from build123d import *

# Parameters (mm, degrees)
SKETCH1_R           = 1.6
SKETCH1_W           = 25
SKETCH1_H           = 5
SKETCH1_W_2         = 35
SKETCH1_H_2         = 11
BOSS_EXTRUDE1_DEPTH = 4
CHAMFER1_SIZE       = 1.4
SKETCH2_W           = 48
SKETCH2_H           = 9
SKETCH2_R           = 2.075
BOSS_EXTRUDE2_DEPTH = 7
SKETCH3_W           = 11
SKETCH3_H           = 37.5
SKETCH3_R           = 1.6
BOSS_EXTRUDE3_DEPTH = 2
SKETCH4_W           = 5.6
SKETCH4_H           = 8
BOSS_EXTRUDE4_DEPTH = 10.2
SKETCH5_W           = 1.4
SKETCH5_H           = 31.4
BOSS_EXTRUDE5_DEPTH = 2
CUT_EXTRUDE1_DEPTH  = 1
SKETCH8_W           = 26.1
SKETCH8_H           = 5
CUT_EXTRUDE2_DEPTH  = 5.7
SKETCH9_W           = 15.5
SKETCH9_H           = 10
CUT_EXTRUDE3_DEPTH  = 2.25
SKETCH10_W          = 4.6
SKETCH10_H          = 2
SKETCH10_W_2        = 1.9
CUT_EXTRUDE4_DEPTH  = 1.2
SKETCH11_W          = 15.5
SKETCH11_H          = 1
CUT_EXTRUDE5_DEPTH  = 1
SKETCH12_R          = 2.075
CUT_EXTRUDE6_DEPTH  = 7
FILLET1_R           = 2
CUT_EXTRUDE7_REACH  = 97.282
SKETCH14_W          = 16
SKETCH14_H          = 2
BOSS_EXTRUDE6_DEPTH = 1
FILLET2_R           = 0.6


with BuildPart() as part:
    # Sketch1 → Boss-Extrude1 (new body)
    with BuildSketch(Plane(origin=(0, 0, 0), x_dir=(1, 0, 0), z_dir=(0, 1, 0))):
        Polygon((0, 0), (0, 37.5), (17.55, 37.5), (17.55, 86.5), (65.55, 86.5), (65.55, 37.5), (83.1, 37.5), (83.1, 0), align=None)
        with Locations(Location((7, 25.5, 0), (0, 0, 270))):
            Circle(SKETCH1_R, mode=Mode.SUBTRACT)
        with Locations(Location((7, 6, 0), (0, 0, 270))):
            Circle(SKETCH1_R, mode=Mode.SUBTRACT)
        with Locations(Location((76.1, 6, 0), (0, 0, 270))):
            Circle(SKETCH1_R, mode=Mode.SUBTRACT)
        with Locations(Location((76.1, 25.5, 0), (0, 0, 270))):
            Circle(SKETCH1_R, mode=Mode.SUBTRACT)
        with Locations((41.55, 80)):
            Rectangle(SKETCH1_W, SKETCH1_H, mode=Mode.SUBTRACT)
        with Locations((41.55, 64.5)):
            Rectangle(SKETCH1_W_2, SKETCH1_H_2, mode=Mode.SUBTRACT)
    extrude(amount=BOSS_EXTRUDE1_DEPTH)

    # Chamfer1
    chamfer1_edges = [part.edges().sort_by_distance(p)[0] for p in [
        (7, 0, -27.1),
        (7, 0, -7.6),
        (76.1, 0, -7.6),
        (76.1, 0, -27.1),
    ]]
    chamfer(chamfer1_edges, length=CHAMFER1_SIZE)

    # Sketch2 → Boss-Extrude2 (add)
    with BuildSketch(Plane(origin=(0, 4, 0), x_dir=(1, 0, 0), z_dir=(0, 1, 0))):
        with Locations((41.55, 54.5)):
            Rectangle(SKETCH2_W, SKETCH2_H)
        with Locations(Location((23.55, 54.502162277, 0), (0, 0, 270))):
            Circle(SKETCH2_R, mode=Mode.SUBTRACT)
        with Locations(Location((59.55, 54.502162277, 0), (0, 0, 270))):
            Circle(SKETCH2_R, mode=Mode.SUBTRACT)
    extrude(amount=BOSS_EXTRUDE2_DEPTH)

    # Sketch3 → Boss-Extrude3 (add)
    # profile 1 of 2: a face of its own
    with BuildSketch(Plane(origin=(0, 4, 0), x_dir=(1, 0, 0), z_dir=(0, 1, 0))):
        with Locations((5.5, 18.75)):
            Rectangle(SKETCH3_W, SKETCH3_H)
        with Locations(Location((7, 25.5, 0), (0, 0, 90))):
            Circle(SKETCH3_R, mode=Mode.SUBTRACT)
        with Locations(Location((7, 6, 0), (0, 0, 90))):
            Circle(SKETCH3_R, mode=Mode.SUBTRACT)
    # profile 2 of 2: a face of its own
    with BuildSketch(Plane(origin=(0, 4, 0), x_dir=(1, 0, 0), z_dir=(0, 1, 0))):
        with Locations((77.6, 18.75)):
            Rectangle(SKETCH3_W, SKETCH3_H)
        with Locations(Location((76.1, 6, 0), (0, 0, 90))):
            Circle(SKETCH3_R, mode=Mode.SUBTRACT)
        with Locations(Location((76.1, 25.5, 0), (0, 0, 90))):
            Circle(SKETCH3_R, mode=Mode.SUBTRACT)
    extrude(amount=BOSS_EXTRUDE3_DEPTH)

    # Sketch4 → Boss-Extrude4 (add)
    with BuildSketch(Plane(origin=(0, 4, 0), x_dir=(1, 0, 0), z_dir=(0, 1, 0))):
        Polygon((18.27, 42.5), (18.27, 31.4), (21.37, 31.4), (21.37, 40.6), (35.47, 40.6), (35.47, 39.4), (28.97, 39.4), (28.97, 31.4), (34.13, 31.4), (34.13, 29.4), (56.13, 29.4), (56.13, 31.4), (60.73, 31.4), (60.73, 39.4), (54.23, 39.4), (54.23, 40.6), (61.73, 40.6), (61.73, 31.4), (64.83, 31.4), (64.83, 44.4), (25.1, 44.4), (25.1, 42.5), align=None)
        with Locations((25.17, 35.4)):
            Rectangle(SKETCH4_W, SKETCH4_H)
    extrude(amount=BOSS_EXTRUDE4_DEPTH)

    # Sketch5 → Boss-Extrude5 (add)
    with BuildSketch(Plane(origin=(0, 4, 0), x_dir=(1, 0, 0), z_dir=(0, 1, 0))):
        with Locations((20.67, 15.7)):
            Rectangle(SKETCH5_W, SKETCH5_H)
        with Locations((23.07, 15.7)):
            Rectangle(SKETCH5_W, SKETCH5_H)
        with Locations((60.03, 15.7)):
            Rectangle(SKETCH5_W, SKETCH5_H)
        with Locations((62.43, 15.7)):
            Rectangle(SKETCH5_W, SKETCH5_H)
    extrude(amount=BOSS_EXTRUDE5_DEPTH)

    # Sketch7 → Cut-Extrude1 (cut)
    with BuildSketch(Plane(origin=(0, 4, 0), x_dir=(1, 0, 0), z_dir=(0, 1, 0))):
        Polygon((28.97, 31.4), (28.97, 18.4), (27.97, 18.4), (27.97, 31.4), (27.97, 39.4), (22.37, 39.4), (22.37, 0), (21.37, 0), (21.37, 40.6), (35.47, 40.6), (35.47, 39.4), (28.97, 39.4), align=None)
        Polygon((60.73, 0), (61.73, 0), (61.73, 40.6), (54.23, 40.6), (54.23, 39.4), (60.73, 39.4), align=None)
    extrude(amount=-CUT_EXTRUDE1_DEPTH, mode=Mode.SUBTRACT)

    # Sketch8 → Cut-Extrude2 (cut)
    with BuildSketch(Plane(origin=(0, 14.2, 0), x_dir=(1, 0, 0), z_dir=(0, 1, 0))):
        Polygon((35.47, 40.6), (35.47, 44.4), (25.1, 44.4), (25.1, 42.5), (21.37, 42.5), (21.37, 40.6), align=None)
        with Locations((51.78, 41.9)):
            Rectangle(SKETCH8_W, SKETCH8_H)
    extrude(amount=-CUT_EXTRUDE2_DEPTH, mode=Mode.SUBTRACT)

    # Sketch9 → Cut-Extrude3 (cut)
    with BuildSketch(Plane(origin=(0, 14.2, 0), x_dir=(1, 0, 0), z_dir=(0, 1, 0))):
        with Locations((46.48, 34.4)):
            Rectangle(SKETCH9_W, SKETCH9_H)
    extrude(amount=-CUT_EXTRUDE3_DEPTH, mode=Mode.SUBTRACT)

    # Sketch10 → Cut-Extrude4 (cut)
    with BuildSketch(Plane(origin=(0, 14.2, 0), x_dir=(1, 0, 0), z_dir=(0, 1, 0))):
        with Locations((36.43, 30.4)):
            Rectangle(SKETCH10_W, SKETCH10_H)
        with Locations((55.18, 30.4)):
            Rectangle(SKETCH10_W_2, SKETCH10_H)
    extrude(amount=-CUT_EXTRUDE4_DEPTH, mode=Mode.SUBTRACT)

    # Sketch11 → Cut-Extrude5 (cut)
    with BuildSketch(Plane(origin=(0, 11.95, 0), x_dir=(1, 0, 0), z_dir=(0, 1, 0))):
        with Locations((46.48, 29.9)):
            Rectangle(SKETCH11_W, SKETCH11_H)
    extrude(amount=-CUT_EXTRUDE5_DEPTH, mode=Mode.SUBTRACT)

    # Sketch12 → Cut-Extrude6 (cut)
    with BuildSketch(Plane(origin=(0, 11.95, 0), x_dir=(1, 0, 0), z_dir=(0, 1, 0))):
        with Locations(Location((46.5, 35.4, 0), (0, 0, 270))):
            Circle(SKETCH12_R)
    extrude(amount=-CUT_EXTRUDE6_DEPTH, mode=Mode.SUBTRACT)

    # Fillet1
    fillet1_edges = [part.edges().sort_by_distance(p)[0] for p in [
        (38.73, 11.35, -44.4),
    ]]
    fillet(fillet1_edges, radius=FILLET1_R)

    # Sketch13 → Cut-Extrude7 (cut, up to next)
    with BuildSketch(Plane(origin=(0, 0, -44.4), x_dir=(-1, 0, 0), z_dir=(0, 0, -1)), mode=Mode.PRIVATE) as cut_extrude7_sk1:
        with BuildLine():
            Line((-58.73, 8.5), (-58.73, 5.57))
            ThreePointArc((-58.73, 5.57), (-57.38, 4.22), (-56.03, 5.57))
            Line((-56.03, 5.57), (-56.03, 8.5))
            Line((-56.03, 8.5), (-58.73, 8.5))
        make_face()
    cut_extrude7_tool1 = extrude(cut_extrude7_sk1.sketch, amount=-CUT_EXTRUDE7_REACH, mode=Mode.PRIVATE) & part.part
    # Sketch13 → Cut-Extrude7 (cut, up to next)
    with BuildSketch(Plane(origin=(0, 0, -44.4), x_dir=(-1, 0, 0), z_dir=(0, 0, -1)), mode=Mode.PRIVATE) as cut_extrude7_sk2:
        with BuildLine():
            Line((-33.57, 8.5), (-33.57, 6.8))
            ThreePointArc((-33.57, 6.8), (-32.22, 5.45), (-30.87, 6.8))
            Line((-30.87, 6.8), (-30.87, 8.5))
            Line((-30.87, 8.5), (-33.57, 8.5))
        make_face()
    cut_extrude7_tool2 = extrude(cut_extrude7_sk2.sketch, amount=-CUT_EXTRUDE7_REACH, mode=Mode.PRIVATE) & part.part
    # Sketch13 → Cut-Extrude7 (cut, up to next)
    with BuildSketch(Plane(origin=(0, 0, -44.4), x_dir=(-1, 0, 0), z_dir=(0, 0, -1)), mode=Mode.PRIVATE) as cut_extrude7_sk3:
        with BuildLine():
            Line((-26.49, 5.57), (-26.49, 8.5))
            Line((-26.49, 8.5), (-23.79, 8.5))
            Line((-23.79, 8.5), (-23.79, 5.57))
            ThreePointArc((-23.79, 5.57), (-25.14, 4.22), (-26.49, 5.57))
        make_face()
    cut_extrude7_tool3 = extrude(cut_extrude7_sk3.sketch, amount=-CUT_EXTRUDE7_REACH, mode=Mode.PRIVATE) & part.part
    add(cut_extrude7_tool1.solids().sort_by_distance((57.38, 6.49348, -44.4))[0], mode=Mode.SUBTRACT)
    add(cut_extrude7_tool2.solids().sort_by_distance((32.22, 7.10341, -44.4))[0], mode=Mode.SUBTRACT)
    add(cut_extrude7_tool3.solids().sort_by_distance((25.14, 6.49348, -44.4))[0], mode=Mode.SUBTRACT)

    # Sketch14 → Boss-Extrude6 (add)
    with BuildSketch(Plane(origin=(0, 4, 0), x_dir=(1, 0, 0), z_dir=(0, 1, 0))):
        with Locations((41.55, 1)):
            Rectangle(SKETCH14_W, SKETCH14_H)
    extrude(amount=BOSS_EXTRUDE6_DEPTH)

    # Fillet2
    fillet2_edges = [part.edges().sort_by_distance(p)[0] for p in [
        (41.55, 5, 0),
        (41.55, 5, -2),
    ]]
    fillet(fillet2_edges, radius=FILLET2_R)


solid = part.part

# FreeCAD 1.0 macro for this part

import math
import FreeCAD as App
import Part
import Sketcher
Q = App.Units.Quantity


def edges_at(feature, points):
    """Names of the edges that pass closest to the given points."""
    edges = feature.Shape.Edges
    near = lambda p: min(range(len(edges)), key=lambda i: edges[i].distToShape(Part.Vertex(*p))[0])
    return sorted({f"Edge{near(p) + 1}" for p in points})


def add_polygon(sketch, points):
    """Adds a closed chain of lines whose ends are joined by coincident constraints."""
    first, n = sketch.GeometryCount, len(points)
    for a, b in zip(points, points[1:] + points[:1]):
        sketch.addGeometry(Part.LineSegment(App.Vector(*a, 0), App.Vector(*b, 0)), False)
    for i in range(n):
        sketch.addConstraint(Sketcher.Constraint("Coincident", first + i, 2, first + (i + 1) % n, 1))

doc = App.newDocument("Part")
body = doc.addObject("PartDesign::Body", "Body")

# Sketch on XZ plane
sketch1 = body.newObject("Sketcher::SketchObject", "Sketch")
sketch1.AttachmentSupport = (doc.getObject("XZ_Plane"), [""])
sketch1.MapMode = "FlatFace"
add_polygon(sketch1, [(0, -37.5), (0, 0), (83.1, 0), (83.1, -37.5), (65.5, -37.5), (65.5, -86.5), (17.6, -86.5), (17.6, -37.5)])  # lines 0-7
sketch1.addGeometry(Part.Circle(App.Vector(76.1, -6, 0), App.Vector(0, 0, 1), 1.6), False)  # 8
sketch1.addGeometry(Part.Circle(App.Vector(76.1, -25.5, 0), App.Vector(0, 0, 1), 1.6), False)  # 9
sketch1.addGeometry(Part.Circle(App.Vector(7, -6, 0), App.Vector(0, 0, 1), 1.6), False)  # 10
sketch1.addGeometry(Part.Circle(App.Vector(7, -25.5, 0), App.Vector(0, 0, 1), 1.6), False)  # 11
add_polygon(sketch1, [(24.1, -59), (24.1, -70), (59, -70), (59, -59)])  # lines 12-15
add_polygon(sketch1, [(29.1, -77.5), (29.1, -82.5), (54, -82.5), (54, -77.5)])  # lines 16-19
sketch1.addConstraint(Sketcher.Constraint("Vertical", 0))
sketch1.addConstraint(Sketcher.Constraint("Horizontal", 1))
sketch1.addConstraint(Sketcher.Constraint("Vertical", 2))
sketch1.addConstraint(Sketcher.Constraint("Horizontal", 3))
sketch1.addConstraint(Sketcher.Constraint("Vertical", 4))
sketch1.addConstraint(Sketcher.Constraint("Horizontal", 5))
sketch1.addConstraint(Sketcher.Constraint("Vertical", 6))
sketch1.addConstraint(Sketcher.Constraint("Horizontal", 7))
sketch1.addConstraint(Sketcher.Constraint("Vertical", 12))
sketch1.addConstraint(Sketcher.Constraint("Horizontal", 13))
sketch1.addConstraint(Sketcher.Constraint("Vertical", 14))
sketch1.addConstraint(Sketcher.Constraint("Horizontal", 15))
sketch1.addConstraint(Sketcher.Constraint("Vertical", 16))
sketch1.addConstraint(Sketcher.Constraint("Horizontal", 17))
sketch1.addConstraint(Sketcher.Constraint("Vertical", 18))
sketch1.addConstraint(Sketcher.Constraint("Horizontal", 19))
sketch1.addConstraint(Sketcher.Constraint("Coincident", 0, 2, -1, 1))
sketch1.addConstraint(Sketcher.Constraint("Equal", 8, 9))
sketch1.addConstraint(Sketcher.Constraint("Equal", 9, 10))
sketch1.addConstraint(Sketcher.Constraint("Equal", 10, 11))
sketch1.addConstraint(Sketcher.Constraint("Horizontal", 8, 3, 10, 3))
sketch1.addConstraint(Sketcher.Constraint("Horizontal", 9, 3, 11, 3))
sketch1.addConstraint(Sketcher.Constraint("Horizontal", 3, 2, 6, 2))
sketch1.addConstraint(Sketcher.Constraint("Vertical", 8, 3, 9, 3))
sketch1.addConstraint(Sketcher.Constraint("Vertical", 10, 3, 11, 3))
sketch1.addConstraint(Sketcher.Constraint("Equal", 3, 7))
sketch1.addConstraint(Sketcher.Constraint("Diameter", 8, Q("3.2 mm")))
sketch1.addConstraint(Sketcher.Constraint("DistanceX", 5, 2, 5, 1, Q("48 mm")))
sketch1.addConstraint(Sketcher.Constraint("DistanceX", 13, 1, 13, 2, Q("35 mm")))
sketch1.addConstraint(Sketcher.Constraint("DistanceX", 17, 1, 17, 2, Q("25 mm")))
sketch1.addConstraint(Sketcher.Constraint("DistanceY", 4, 2, 4, 1, Q("49 mm")))
sketch1.addConstraint(Sketcher.Constraint("DistanceY", 12, 2, 12, 1, Q("11 mm")))
sketch1.addConstraint(Sketcher.Constraint("DistanceY", 16, 2, 16, 1, Q("5 mm")))
sketch1.addConstraint(Sketcher.Constraint("DistanceX", 1, 1, 1, 2, Q("83.1 mm")))
sketch1.addConstraint(Sketcher.Constraint("DistanceY", 0, 1, 0, 2, Q("37.5 mm")))
sketch1.addConstraint(Sketcher.Constraint("DistanceY", 8, 3, -1, 1, Q("6 mm")))
sketch1.addConstraint(Sketcher.Constraint("DistanceX", -1, 1, 10, 3, Q("7 mm")))
sketch1.addConstraint(Sketcher.Constraint("DistanceY", 12, 2, -1, 1, Q("70 mm")))
sketch1.addConstraint(Sketcher.Constraint("DistanceX", 8, 3, 1, 2, Q("7 mm")))
sketch1.addConstraint(Sketcher.Constraint("DistanceY", 2, 2, 9, 3, Q("12 mm")))
sketch1.addConstraint(Sketcher.Constraint("DistanceY", 5, 2, 16, 2, Q("4 mm")))
sketch1.addConstraint(Sketcher.Constraint("DistanceX", 12, 2, 16, 2, Q("5 mm")))
sketch1.addConstraint(Sketcher.Constraint("DistanceX", 5, 2, 12, 2, Q("6.5 mm")))
pad1 = body.newObject("PartDesign::Pad", "Pad")
pad1.Profile = sketch1
pad1.Length = 4
pad1.Reversed = True
doc.recompute()

chamfer = body.newObject("PartDesign::Chamfer", "Chamfer")
chamfer.Base = (pad1, edges_at(pad1, [
    (7, 0, -27.1),
    (7, 0, -7.6),
    (76.1, 0, -7.6),
    (76.1, 0, -27.1),
]))
chamfer.Size = 1.4

# Sketch on XZ plane
sketch2 = body.newObject("Sketcher::SketchObject", "Sketch001")
sketch2.AttachmentSupport = (doc.getObject("XZ_Plane"), [""])
sketch2.MapMode = "FlatFace"
sketch2.AttachmentOffset = App.Placement(App.Vector(0, 0, -4), App.Rotation())
add_polygon(sketch2, [(17.6, -59), (17.6, -50), (65.5, -50), (65.5, -59)])  # lines 0-3
sketch2.addGeometry(Part.Circle(App.Vector(23.6, -54.5, 0), App.Vector(0, 0, 1), 2.1), False)  # 4
sketch2.addGeometry(Part.Circle(App.Vector(59.5, -54.5, 0), App.Vector(0, 0, 1), 2.1), False)  # 5
sketch2.addConstraint(Sketcher.Constraint("Vertical", 0))
sketch2.addConstraint(Sketcher.Constraint("Horizontal", 1))
sketch2.addConstraint(Sketcher.Constraint("Vertical", 2))
sketch2.addConstraint(Sketcher.Constraint("Horizontal", 3))
sketch2.addConstraint(Sketcher.Constraint("Equal", 4, 5))
sketch2.addConstraint(Sketcher.Constraint("Horizontal", 4, 3, 5, 3))
sketch2.addConstraint(Sketcher.Constraint("Diameter", 4, Q("4.15 mm")))
sketch2.addConstraint(Sketcher.Constraint("DistanceX", 1, 1, 1, 2, Q("48 mm")))
sketch2.addConstraint(Sketcher.Constraint("DistanceY", 0, 1, 0, 2, Q("9 mm")))
sketch2.addConstraint(Sketcher.Constraint("DistanceY", 0, 2, -1, 1, Q("50 mm")))
sketch2.addConstraint(Sketcher.Constraint("DistanceX", 4, 3, 5, 3, Q("36 mm")))
sketch2.addConstraint(Sketcher.Constraint("DistanceX", 0, 2, 4, 3, Q("6 mm")))
sketch2.addConstraint(Sketcher.Constraint("DistanceX", -1, 1, 4, 3, Q("23.55 mm")))
sketch2.addConstraint(Sketcher.Constraint("DistanceY", 4, 3, -1, 1, Q("54.502162 mm")))
pad2 = body.newObject("PartDesign::Pad", "Pad001")
pad2.Profile = sketch2
pad2.Length = 7
pad2.Reversed = True

# Sketch on XZ plane
sketch3 = body.newObject("Sketcher::SketchObject", "Sketch002")
sketch3.AttachmentSupport = (doc.getObject("XZ_Plane"), [""])
sketch3.MapMode = "FlatFace"
sketch3.AttachmentOffset = App.Placement(App.Vector(0, 0, -4), App.Rotation())
add_polygon(sketch3, [(0, -37.5), (0, 0), (11, 0), (11, -37.5)])  # lines 0-3
sketch3.addGeometry(Part.Circle(App.Vector(7, -6, 0), App.Vector(0, 0, 1), 1.6), False)  # 4
sketch3.addGeometry(Part.Circle(App.Vector(7, -25.5, 0), App.Vector(0, 0, 1), 1.6), False)  # 5
add_polygon(sketch3, [(72.1, -37.5), (72.1, 0), (83.1, 0), (83.1, -37.5)])  # lines 6-9
sketch3.addGeometry(Part.Circle(App.Vector(76.1, -6, 0), App.Vector(0, 0, 1), 1.6), False)  # 10
sketch3.addGeometry(Part.Circle(App.Vector(76.1, -25.5, 0), App.Vector(0, 0, 1), 1.6), False)  # 11
sketch3.addConstraint(Sketcher.Constraint("Vertical", 0))
sketch3.addConstraint(Sketcher.Constraint("Horizontal", 1))
sketch3.addConstraint(Sketcher.Constraint("Vertical", 2))
sketch3.addConstraint(Sketcher.Constraint("Horizontal", 3))
sketch3.addConstraint(Sketcher.Constraint("Vertical", 6))
sketch3.addConstraint(Sketcher.Constraint("Horizontal", 7))
sketch3.addConstraint(Sketcher.Constraint("Vertical", 8))
sketch3.addConstraint(Sketcher.Constraint("Horizontal", 9))
sketch3.addConstraint(Sketcher.Constraint("Coincident", 0, 2, -1, 1))
sketch3.addConstraint(Sketcher.Constraint("Equal", 4, 5))
sketch3.addConstraint(Sketcher.Constraint("Equal", 5, 10))
sketch3.addConstraint(Sketcher.Constraint("Equal", 10, 11))
sketch3.addConstraint(Sketcher.Constraint("PointOnObject", 6, 2, -1))
sketch3.addConstraint(Sketcher.Constraint("Horizontal", 4, 3, 10, 3))
sketch3.addConstraint(Sketcher.Constraint("Horizontal", 5, 3, 11, 3))
sketch3.addConstraint(Sketcher.Constraint("Horizontal", 3, 2, 8, 2))
sketch3.addConstraint(Sketcher.Constraint("Vertical", 4, 3, 5, 3))
sketch3.addConstraint(Sketcher.Constraint("Vertical", 10, 3, 11, 3))
sketch3.addConstraint(Sketcher.Constraint("Equal", 3, 7))
sketch3.addConstraint(Sketcher.Constraint("Diameter", 4, Q("3.2 mm")))
sketch3.addConstraint(Sketcher.Constraint("DistanceX", 1, 1, 1, 2, Q("11 mm")))
sketch3.addConstraint(Sketcher.Constraint("DistanceY", 0, 1, 0, 2, Q("37.5 mm")))
sketch3.addConstraint(Sketcher.Constraint("DistanceX", -1, 1, 4, 3, Q("7 mm")))
sketch3.addConstraint(Sketcher.Constraint("DistanceY", 4, 3, -1, 1, Q("6 mm")))
sketch3.addConstraint(Sketcher.Constraint("DistanceY", 2, 2, 5, 3, Q("12 mm")))
sketch3.addConstraint(Sketcher.Constraint("DistanceX", 6, 2, 10, 3, Q("4 mm")))
sketch3.addConstraint(Sketcher.Constraint("DistanceX", -1, 1, 10, 3, Q("76.1 mm")))
pad3 = body.newObject("PartDesign::Pad", "Pad002")
pad3.Profile = sketch3
pad3.Length = 2
pad3.Reversed = True

# Sketch on XZ plane
sketch4 = body.newObject("Sketcher::SketchObject", "Sketch003")
sketch4.AttachmentSupport = (doc.getObject("XZ_Plane"), [""])
sketch4.MapMode = "FlatFace"
sketch4.AttachmentOffset = App.Placement(App.Vector(0, 0, -4), App.Rotation())
add_polygon(sketch4, [(18.3, -42.5), (18.3, -31.4), (21.4, -31.4), (21.4, -40.6), (35.5, -40.6), (35.5, -39.4), (29, -39.4), (29, -31.4), (34.1, -31.4), (34.1, -29.4), (56.1, -29.4), (56.1, -31.4), (60.7, -31.4), (60.7, -39.4), (54.2, -39.4), (54.2, -40.6), (61.7, -40.6), (61.7, -31.4), (64.8, -31.4), (64.8, -44.4), (25.1, -44.4), (25.1, -42.5)])  # lines 0-21
add_polygon(sketch4, [(22.4, -39.4), (22.4, -31.4), (28, -31.4), (28, -39.4)])  # lines 22-25
sketch4.addConstraint(Sketcher.Constraint("Vertical", 0))
sketch4.addConstraint(Sketcher.Constraint("Horizontal", 1))
sketch4.addConstraint(Sketcher.Constraint("Vertical", 2))
sketch4.addConstraint(Sketcher.Constraint("Horizontal", 3))
sketch4.addConstraint(Sketcher.Constraint("Vertical", 4))
sketch4.addConstraint(Sketcher.Constraint("Horizontal", 5))
sketch4.addConstraint(Sketcher.Constraint("Vertical", 6))
sketch4.addConstraint(Sketcher.Constraint("Horizontal", 7))
sketch4.addConstraint(Sketcher.Constraint("Vertical", 8))
sketch4.addConstraint(Sketcher.Constraint("Horizontal", 9))
sketch4.addConstraint(Sketcher.Constraint("Vertical", 10))
sketch4.addConstraint(Sketcher.Constraint("Horizontal", 11))
sketch4.addConstraint(Sketcher.Constraint("Vertical", 12))
sketch4.addConstraint(Sketcher.Constraint("Horizontal", 13))
sketch4.addConstraint(Sketcher.Constraint("Vertical", 14))
sketch4.addConstraint(Sketcher.Constraint("Horizontal", 15))
sketch4.addConstraint(Sketcher.Constraint("Vertical", 16))
sketch4.addConstraint(Sketcher.Constraint("Horizontal", 17))
sketch4.addConstraint(Sketcher.Constraint("Vertical", 18))
sketch4.addConstraint(Sketcher.Constraint("Horizontal", 19))
sketch4.addConstraint(Sketcher.Constraint("Vertical", 20))
sketch4.addConstraint(Sketcher.Constraint("Horizontal", 21))
sketch4.addConstraint(Sketcher.Constraint("Vertical", 22))
sketch4.addConstraint(Sketcher.Constraint("Horizontal", 23))
sketch4.addConstraint(Sketcher.Constraint("Vertical", 24))
sketch4.addConstraint(Sketcher.Constraint("Horizontal", 25))
sketch4.addConstraint(Sketcher.Constraint("Horizontal", 1, 2, 6, 2))
sketch4.addConstraint(Sketcher.Constraint("Horizontal", 7, 2, 10, 2))
sketch4.addConstraint(Sketcher.Constraint("Horizontal", 5, 2, 12, 2))
sketch4.addConstraint(Sketcher.Constraint("Horizontal", 3, 2, 14, 2))
sketch4.addConstraint(Sketcher.Constraint("Horizontal", 11, 2, 16, 2))
sketch4.addConstraint(Sketcher.Constraint("Horizontal", 17, 2, 22, 2))
sketch4.addConstraint(Sketcher.Constraint("Horizontal", 13, 2, 24, 2))
sketch4.addConstraint(Sketcher.Constraint("Equal", 5, 13))
sketch4.addConstraint(Sketcher.Constraint("Equal", 1, 17))
sketch4.addConstraint(Sketcher.Constraint("DistanceX", 9, 1, 9, 2, Q("22 mm")))
sketch4.addConstraint(Sketcher.Constraint("DistanceY", 6, 1, 6, 2, Q("8 mm")))
sketch4.addConstraint(Sketcher.Constraint("DistanceY", 8, 1, 8, 2, Q("2 mm")))
sketch4.addConstraint(Sketcher.Constraint("DistanceY", 18, 2, 18, 1, Q("13 mm")))
sketch4.addConstraint(Sketcher.Constraint("DistanceX", 1, 1, 1, 2, Q("3.1 mm")))
sketch4.addConstraint(Sketcher.Constraint("DistanceX", 3, 1, 3, 2, Q("14.1 mm")))
sketch4.addConstraint(Sketcher.Constraint("DistanceX", 5, 2, 5, 1, Q("6.5 mm")))
sketch4.addConstraint(Sketcher.Constraint("DistanceX", 11, 1, 11, 2, Q("4.6 mm")))
sketch4.addConstraint(Sketcher.Constraint("DistanceX", 15, 1, 15, 2, Q("7.5 mm")))
sketch4.addConstraint(Sketcher.Constraint("DistanceX", 23, 1, 23, 2, Q("5.6 mm")))
sketch4.addConstraint(Sketcher.Constraint("DistanceY", 0, 1, 0, 2, Q("11.1 mm")))
sketch4.addConstraint(Sketcher.Constraint("DistanceY", 2, 2, 2, 1, Q("9.2 mm")))
sketch4.addConstraint(Sketcher.Constraint("DistanceX", 1, 2, 22, 2, Q("1 mm")))
sketch4.addConstraint(Sketcher.Constraint("DistanceX", 7, 1, 7, 2, Q("5.16 mm")))
sketch4.addConstraint(Sketcher.Constraint("DistanceX", 19, 2, 19, 1, Q("39.73 mm")))
sketch4.addConstraint(Sketcher.Constraint("DistanceY", 0, 2, -1, 1, Q("31.4 mm")))
sketch4.addConstraint(Sketcher.Constraint("DistanceX", -1, 1, 19, 2, Q("25.1 mm")))
pad4 = body.newObject("PartDesign::Pad", "Pad003")
pad4.Profile = sketch4
pad4.Length = 10.2
pad4.Reversed = True

# Sketch on XZ plane
sketch5 = body.newObject("Sketcher::SketchObject", "Sketch004")
sketch5.AttachmentSupport = (doc.getObject("XZ_Plane"), [""])
sketch5.MapMode = "FlatFace"
sketch5.AttachmentOffset = App.Placement(App.Vector(0, 0, -4), App.Rotation())
add_polygon(sketch5, [(20, -31.4), (20, 0), (21.4, 0), (21.4, -31.4)])  # lines 0-3
add_polygon(sketch5, [(22.4, -31.4), (22.4, 0), (23.8, 0), (23.8, -31.4)])  # lines 4-7
add_polygon(sketch5, [(59.3, -31.4), (59.3, 0), (60.7, 0), (60.7, -31.4)])  # lines 8-11
add_polygon(sketch5, [(61.7, -31.4), (61.7, 0), (63.1, 0), (63.1, -31.4)])  # lines 12-15
sketch5.addConstraint(Sketcher.Constraint("Vertical", 0))
sketch5.addConstraint(Sketcher.Constraint("Horizontal", 1))
sketch5.addConstraint(Sketcher.Constraint("Vertical", 2))
sketch5.addConstraint(Sketcher.Constraint("Horizontal", 3))
sketch5.addConstraint(Sketcher.Constraint("Vertical", 4))
sketch5.addConstraint(Sketcher.Constraint("Horizontal", 5))
sketch5.addConstraint(Sketcher.Constraint("Vertical", 6))
sketch5.addConstraint(Sketcher.Constraint("Horizontal", 7))
sketch5.addConstraint(Sketcher.Constraint("Vertical", 8))
sketch5.addConstraint(Sketcher.Constraint("Horizontal", 9))
sketch5.addConstraint(Sketcher.Constraint("Vertical", 10))
sketch5.addConstraint(Sketcher.Constraint("Horizontal", 11))
sketch5.addConstraint(Sketcher.Constraint("Vertical", 12))
sketch5.addConstraint(Sketcher.Constraint("Horizontal", 13))
sketch5.addConstraint(Sketcher.Constraint("Vertical", 14))
sketch5.addConstraint(Sketcher.Constraint("Horizontal", 15))
sketch5.addConstraint(Sketcher.Constraint("PointOnObject", 0, 2, -1))
sketch5.addConstraint(Sketcher.Constraint("PointOnObject", 4, 2, -1))
sketch5.addConstraint(Sketcher.Constraint("PointOnObject", 8, 2, -1))
sketch5.addConstraint(Sketcher.Constraint("PointOnObject", 12, 2, -1))
sketch5.addConstraint(Sketcher.Constraint("Horizontal", 3, 2, 6, 2))
sketch5.addConstraint(Sketcher.Constraint("Horizontal", 7, 2, 10, 2))
sketch5.addConstraint(Sketcher.Constraint("Horizontal", 11, 2, 14, 2))
sketch5.addConstraint(Sketcher.Constraint("Equal", 3, 5))
sketch5.addConstraint(Sketcher.Constraint("Equal", 7, 9))
sketch5.addConstraint(Sketcher.Constraint("Equal", 11, 13))
sketch5.addConstraint(Sketcher.Constraint("DistanceX", 1, 1, 1, 2, Q("1.4 mm")))
sketch5.addConstraint(Sketcher.Constraint("DistanceY", 0, 1, 0, 2, Q("31.4 mm")))
sketch5.addConstraint(Sketcher.Constraint("DistanceX", 1, 2, 4, 2, Q("1 mm")))
sketch5.addConstraint(Sketcher.Constraint("DistanceX", 9, 2, 12, 2, Q("1 mm")))
sketch5.addConstraint(Sketcher.Constraint("DistanceX", -1, 1, 0, 2, Q("19.97 mm")))
sketch5.addConstraint(Sketcher.Constraint("DistanceX", -1, 1, 8, 2, Q("59.33 mm")))
pad5 = body.newObject("PartDesign::Pad", "Pad004")
pad5.Profile = sketch5
pad5.Length = 2
pad5.Reversed = True

# Sketch on XZ plane
sketch6 = body.newObject("Sketcher::SketchObject", "Sketch005")
sketch6.AttachmentSupport = (doc.getObject("XZ_Plane"), [""])
sketch6.MapMode = "FlatFace"
sketch6.AttachmentOffset = App.Placement(App.Vector(0, 0, -4), App.Rotation())
add_polygon(sketch6, [(29, -18.4), (29, -39.4), (35.5, -39.4), (35.5, -40.6), (21.4, -40.6), (21.4, 0), (22.4, 0), (22.4, -39.4), (28, -39.4), (28, -18.4)])  # lines 0-9
add_polygon(sketch6, [(60.7, 0), (61.7, 0), (61.7, -40.6), (54.2, -40.6), (54.2, -39.4), (60.7, -39.4)])  # lines 10-15
sketch6.addConstraint(Sketcher.Constraint("Vertical", 0))
sketch6.addConstraint(Sketcher.Constraint("Horizontal", 1))
sketch6.addConstraint(Sketcher.Constraint("Vertical", 2))
sketch6.addConstraint(Sketcher.Constraint("Horizontal", 3))
sketch6.addConstraint(Sketcher.Constraint("Vertical", 4))
sketch6.addConstraint(Sketcher.Constraint("Horizontal", 5))
sketch6.addConstraint(Sketcher.Constraint("Vertical", 6))
sketch6.addConstraint(Sketcher.Constraint("Horizontal", 7))
sketch6.addConstraint(Sketcher.Constraint("Vertical", 8))
sketch6.addConstraint(Sketcher.Constraint("Horizontal", 9))
sketch6.addConstraint(Sketcher.Constraint("Horizontal", 10))
sketch6.addConstraint(Sketcher.Constraint("Vertical", 11))
sketch6.addConstraint(Sketcher.Constraint("Horizontal", 12))
sketch6.addConstraint(Sketcher.Constraint("Vertical", 13))
sketch6.addConstraint(Sketcher.Constraint("Horizontal", 14))
sketch6.addConstraint(Sketcher.Constraint("Vertical", 15))
sketch6.addConstraint(Sketcher.Constraint("PointOnObject", 4, 2, -1))
sketch6.addConstraint(Sketcher.Constraint("PointOnObject", 10, 2, -1))
sketch6.addConstraint(Sketcher.Constraint("Horizontal", 1, 2, 6, 2))
sketch6.addConstraint(Sketcher.Constraint("Horizontal", 3, 2, 11, 2))
sketch6.addConstraint(Sketcher.Constraint("Horizontal", 7, 2, 13, 2))
sketch6.addConstraint(Sketcher.Constraint("Equal", 5, 9))
sketch6.addConstraint(Sketcher.Constraint("Equal", 9, 10))
sketch6.addConstraint(Sketcher.Constraint("Equal", 1, 14))
sketch6.addConstraint(Sketcher.Constraint("DistanceX", 5, 1, 5, 2, Q("1 mm")))
sketch6.addConstraint(Sketcher.Constraint("DistanceY", 0, 2, 0, 1, Q("21 mm")))
sketch6.addConstraint(Sketcher.Constraint("DistanceX", 1, 1, 1, 2, Q("6.5 mm")))
sketch6.addConstraint(Sketcher.Constraint("DistanceX", 3, 2, 3, 1, Q("14.1 mm")))
sketch6.addConstraint(Sketcher.Constraint("DistanceY", 2, 2, 2, 1, Q("1.2 mm")))
sketch6.addConstraint(Sketcher.Constraint("DistanceY", 4, 1, 4, 2, Q("40.6 mm")))
sketch6.addConstraint(Sketcher.Constraint("DistanceX", -1, 1, 0, 2, Q("28.97 mm")))
sketch6.addConstraint(Sketcher.Constraint("DistanceX", -1, 1, 10, 2, Q("61.73 mm")))
pocket1 = body.newObject("PartDesign::Pocket", "Pocket")
pocket1.Profile = sketch6
pocket1.Length = 1
pocket1.Reversed = True

# Sketch on XZ plane
sketch7 = body.newObject("Sketcher::SketchObject", "Sketch006")
sketch7.AttachmentSupport = (doc.getObject("XZ_Plane"), [""])
sketch7.MapMode = "FlatFace"
sketch7.AttachmentOffset = App.Placement(App.Vector(0, 0, -14.2), App.Rotation())
add_polygon(sketch7, [(35.5, -40.6), (35.5, -44.4), (25.1, -44.4), (25.1, -42.5), (21.4, -42.5), (21.4, -40.6)])  # lines 0-5
add_polygon(sketch7, [(38.7, -44.4), (38.7, -39.4), (64.8, -39.4), (64.8, -44.4)])  # lines 6-9
sketch7.addConstraint(Sketcher.Constraint("Vertical", 0))
sketch7.addConstraint(Sketcher.Constraint("Horizontal", 1))
sketch7.addConstraint(Sketcher.Constraint("Vertical", 2))
sketch7.addConstraint(Sketcher.Constraint("Horizontal", 3))
sketch7.addConstraint(Sketcher.Constraint("Vertical", 4))
sketch7.addConstraint(Sketcher.Constraint("Horizontal", 5))
sketch7.addConstraint(Sketcher.Constraint("Vertical", 6))
sketch7.addConstraint(Sketcher.Constraint("Horizontal", 7))
sketch7.addConstraint(Sketcher.Constraint("Vertical", 8))
sketch7.addConstraint(Sketcher.Constraint("Horizontal", 9))
sketch7.addConstraint(Sketcher.Constraint("Horizontal", 1, 2, 8, 2))
sketch7.addConstraint(Sketcher.Constraint("Equal", 2, 4))
sketch7.addConstraint(Sketcher.Constraint("DistanceY", 6, 1, 6, 2, Q("5 mm")))
sketch7.addConstraint(Sketcher.Constraint("DistanceX", 5, 1, 5, 2, Q("14.1 mm")))
sketch7.addConstraint(Sketcher.Constraint("DistanceX", 7, 1, 7, 2, Q("26.1 mm")))
sketch7.addConstraint(Sketcher.Constraint("DistanceY", 0, 2, 0, 1, Q("3.8 mm")))
sketch7.addConstraint(Sketcher.Constraint("DistanceX", 1, 2, 1, 1, Q("10.37 mm")))
sketch7.addConstraint(Sketcher.Constraint("DistanceY", 0, 2, -1, 1, Q("44.4 mm")))
sketch7.addConstraint(Sketcher.Constraint("DistanceX", -1, 1, 1, 2, Q("25.1 mm")))
sketch7.addConstraint(Sketcher.Constraint("DistanceX", -1, 1, 6, 2, Q("38.73 mm")))
pocket2 = body.newObject("PartDesign::Pocket", "Pocket001")
pocket2.Profile = sketch7
pocket2.Length = 5.7
pocket2.Reversed = True

# Sketch on XZ plane
sketch8 = body.newObject("Sketcher::SketchObject", "Sketch007")
sketch8.AttachmentSupport = (doc.getObject("XZ_Plane"), [""])
sketch8.MapMode = "FlatFace"
sketch8.AttachmentOffset = App.Placement(App.Vector(0, 0, -14.2), App.Rotation())
add_polygon(sketch8, [(39, -39), (39, -29), (54, -29), (54, -39)])  # lines 0-3
sketch8.addConstraint(Sketcher.Constraint("Vertical", 0))
sketch8.addConstraint(Sketcher.Constraint("Horizontal", 1))
sketch8.addConstraint(Sketcher.Constraint("Vertical", 2))
sketch8.addConstraint(Sketcher.Constraint("Horizontal", 3))
sketch8.addConstraint(Sketcher.Constraint("DistanceY", 0, 1, 0, 2, Q("10 mm")))
sketch8.addConstraint(Sketcher.Constraint("DistanceX", 1, 1, 1, 2, Q("15.5 mm")))
sketch8.addConstraint(Sketcher.Constraint("DistanceY", 0, 2, -1, 1, Q("29.4 mm")))
sketch8.addConstraint(Sketcher.Constraint("DistanceX", -1, 1, 0, 2, Q("38.73 mm")))
pocket3 = body.newObject("PartDesign::Pocket", "Pocket002")
pocket3.Profile = sketch8
pocket3.Length = 2.25
pocket3.Reversed = True

# Sketch on XZ plane
sketch9 = body.newObject("Sketcher::SketchObject", "Sketch008")
sketch9.AttachmentSupport = (doc.getObject("XZ_Plane"), [""])
sketch9.MapMode = "FlatFace"
sketch9.AttachmentOffset = App.Placement(App.Vector(0, 0, -14.2), App.Rotation())
add_polygon(sketch9, [(34.1, -31.4), (34.1, -29.4), (38.7, -29.4), (38.7, -31.4)])  # lines 0-3
add_polygon(sketch9, [(54.2, -31.4), (54.2, -29.4), (56.1, -29.4), (56.1, -31.4)])  # lines 4-7
sketch9.addConstraint(Sketcher.Constraint("Vertical", 0))
sketch9.addConstraint(Sketcher.Constraint("Horizontal", 1))
sketch9.addConstraint(Sketcher.Constraint("Vertical", 2))
sketch9.addConstraint(Sketcher.Constraint("Horizontal", 3))
sketch9.addConstraint(Sketcher.Constraint("Vertical", 4))
sketch9.addConstraint(Sketcher.Constraint("Horizontal", 5))
sketch9.addConstraint(Sketcher.Constraint("Vertical", 6))
sketch9.addConstraint(Sketcher.Constraint("Horizontal", 7))
sketch9.addConstraint(Sketcher.Constraint("Horizontal", 1, 2, 4, 2))
sketch9.addConstraint(Sketcher.Constraint("Horizontal", 3, 2, 6, 2))
sketch9.addConstraint(Sketcher.Constraint("DistanceY", 0, 1, 0, 2, Q("2 mm")))
sketch9.addConstraint(Sketcher.Constraint("DistanceX", 1, 1, 1, 2, Q("4.6 mm")))
sketch9.addConstraint(Sketcher.Constraint("DistanceX", 5, 1, 5, 2, Q("1.9 mm")))
sketch9.addConstraint(Sketcher.Constraint("DistanceX", 0, 2, 5, 2, Q("22 mm")))
sketch9.addConstraint(Sketcher.Constraint("DistanceY", 0, 2, -1, 1, Q("29.4 mm")))
sketch9.addConstraint(Sketcher.Constraint("DistanceX", -1, 1, 0, 2, Q("34.13 mm")))
pocket4 = body.newObject("PartDesign::Pocket", "Pocket003")
pocket4.Profile = sketch9
pocket4.Length = 1.2
pocket4.Reversed = True

# Sketch on XZ plane
sketch10 = body.newObject("Sketcher::SketchObject", "Sketch009")
sketch10.AttachmentSupport = (doc.getObject("XZ_Plane"), [""])
sketch10.MapMode = "FlatFace"
sketch10.AttachmentOffset = App.Placement(App.Vector(0, 0, -11.95), App.Rotation())
add_polygon(sketch10, [(38.7, -30.4), (38.7, -29.4), (54.2, -29.4), (54.2, -30.4)])  # lines 0-3
sketch10.addConstraint(Sketcher.Constraint("Vertical", 0))
sketch10.addConstraint(Sketcher.Constraint("Horizontal", 1))
sketch10.addConstraint(Sketcher.Constraint("Vertical", 2))
sketch10.addConstraint(Sketcher.Constraint("Horizontal", 3))
sketch10.addConstraint(Sketcher.Constraint("DistanceY", 0, 1, 0, 2, Q("1 mm")))
sketch10.addConstraint(Sketcher.Constraint("DistanceX", 1, 1, 1, 2, Q("15.5 mm")))
sketch10.addConstraint(Sketcher.Constraint("DistanceY", 0, 2, -1, 1, Q("29.4 mm")))
sketch10.addConstraint(Sketcher.Constraint("DistanceX", -1, 1, 0, 2, Q("38.73 mm")))
pocket5 = body.newObject("PartDesign::Pocket", "Pocket004")
pocket5.Profile = sketch10
pocket5.Length = 1
pocket5.Reversed = True

# Sketch on XZ plane
sketch11 = body.newObject("Sketcher::SketchObject", "Sketch010")
sketch11.AttachmentSupport = (doc.getObject("XZ_Plane"), [""])
sketch11.MapMode = "FlatFace"
sketch11.AttachmentOffset = App.Placement(App.Vector(0, 0, -11.95), App.Rotation())
sketch11.addGeometry(Part.Circle(App.Vector(46.5, -35.4, 0), App.Vector(0, 0, 1), 2.1), False)
sketch11.addConstraint(Sketcher.Constraint("Diameter", 0, Q("4.15 mm")))
sketch11.addConstraint(Sketcher.Constraint("DistanceX", -1, 1, 0, 3, Q("46.5 mm")))
sketch11.addConstraint(Sketcher.Constraint("DistanceY", 0, 3, -1, 1, Q("35.4 mm")))
pocket6 = body.newObject("PartDesign::Pocket", "Pocket005")
pocket6.Profile = sketch11
pocket6.Length = 7
pocket6.Reversed = True
doc.recompute()

fillet = body.newObject("PartDesign::Fillet", "Fillet")
fillet.Base = (pocket6, edges_at(pocket6, [(38.73, 11.35, -44.4)]))
fillet.Radius = 2

# Sketch on XY plane
sketch12 = body.newObject("Sketcher::SketchObject", "Sketch011")
sketch12.AttachmentSupport = (doc.getObject("XY_Plane"), [""])
sketch12.MapMode = "FlatFace"
sketch12.AttachmentOffset = App.Placement(App.Vector(0, 0, -44.4), App.Rotation())
sketch12.addGeometry(Part.LineSegment(App.Vector(58.7, 8.5, 0), App.Vector(58.7, 5.6, 0)), False)
sketch12.addGeometry(Part.ArcOfCircle(Part.Circle(App.Vector(57.4, 5.6, 0), App.Vector(0, 0, 1), 1.4), math.radians(180), math.radians(360)), False)
sketch12.addGeometry(Part.LineSegment(App.Vector(56, 5.6, 0), App.Vector(56, 8.5, 0)), False)
sketch12.addGeometry(Part.LineSegment(App.Vector(56, 8.5, 0), App.Vector(58.7, 8.5, 0)), False)
sketch12.addConstraint(Sketcher.Constraint("Tangent", 0, 2, 1, 2))
sketch12.addConstraint(Sketcher.Constraint("Tangent", 1, 1, 2, 1))
sketch12.addConstraint(Sketcher.Constraint("Coincident", 2, 2, 3, 1))
sketch12.addConstraint(Sketcher.Constraint("Coincident", 3, 2, 0, 1))
sketch12.addConstraint(Sketcher.Constraint("Vertical", 0))
sketch12.addConstraint(Sketcher.Constraint("Vertical", 2))
sketch12.addConstraint(Sketcher.Constraint("Horizontal", 3))
sketch12.addConstraint(Sketcher.Constraint("Radius", 1, Q("1.35 mm")))
sketch12.addConstraint(Sketcher.Constraint("DistanceY", 0, 2, 0, 1, Q("2.93 mm")))
sketch12.addConstraint(Sketcher.Constraint("DistanceY", -1, 1, 2, 2, Q("8.5 mm")))
sketch12.addConstraint(Sketcher.Constraint("DistanceX", -1, 1, 1, 3, Q("57.38 mm")))
pocket7 = body.newObject("PartDesign::Pocket", "Pocket006")
pocket7.Profile = sketch12
pocket7.Type = "UpToFirst"
pocket7.Reversed = True

# Sketch on XY plane
sketch13 = body.newObject("Sketcher::SketchObject", "Sketch012")
sketch13.AttachmentSupport = (doc.getObject("XY_Plane"), [""])
sketch13.MapMode = "FlatFace"
sketch13.AttachmentOffset = App.Placement(App.Vector(0, 0, -44.4), App.Rotation())
sketch13.addGeometry(Part.LineSegment(App.Vector(33.6, 8.5, 0), App.Vector(33.6, 6.8, 0)), False)
sketch13.addGeometry(Part.ArcOfCircle(Part.Circle(App.Vector(32.2, 6.8, 0), App.Vector(0, 0, 1), 1.4), math.radians(180), math.radians(360)), False)
sketch13.addGeometry(Part.LineSegment(App.Vector(30.9, 6.8, 0), App.Vector(30.9, 8.5, 0)), False)
sketch13.addGeometry(Part.LineSegment(App.Vector(30.9, 8.5, 0), App.Vector(33.6, 8.5, 0)), False)
sketch13.addConstraint(Sketcher.Constraint("Tangent", 0, 2, 1, 2))
sketch13.addConstraint(Sketcher.Constraint("Tangent", 1, 1, 2, 1))
sketch13.addConstraint(Sketcher.Constraint("Coincident", 2, 2, 3, 1))
sketch13.addConstraint(Sketcher.Constraint("Coincident", 3, 2, 0, 1))
sketch13.addConstraint(Sketcher.Constraint("Vertical", 0))
sketch13.addConstraint(Sketcher.Constraint("Vertical", 2))
sketch13.addConstraint(Sketcher.Constraint("Horizontal", 3))
sketch13.addConstraint(Sketcher.Constraint("Radius", 1, Q("1.35 mm")))
sketch13.addConstraint(Sketcher.Constraint("DistanceY", 0, 2, 0, 1, Q("1.7 mm")))
sketch13.addConstraint(Sketcher.Constraint("DistanceY", -1, 1, 1, 3, Q("6.8 mm")))
sketch13.addConstraint(Sketcher.Constraint("DistanceX", -1, 1, 1, 3, Q("32.22 mm")))
pocket8 = body.newObject("PartDesign::Pocket", "Pocket007")
pocket8.Profile = sketch13
pocket8.Type = "UpToFirst"
pocket8.Reversed = True

# Sketch on XY plane
sketch14 = body.newObject("Sketcher::SketchObject", "Sketch013")
sketch14.AttachmentSupport = (doc.getObject("XY_Plane"), [""])
sketch14.MapMode = "FlatFace"
sketch14.AttachmentOffset = App.Placement(App.Vector(0, 0, -44.4), App.Rotation())
sketch14.addGeometry(Part.LineSegment(App.Vector(26.5, 8.5, 0), App.Vector(26.5, 5.6, 0)), False)
sketch14.addGeometry(Part.ArcOfCircle(Part.Circle(App.Vector(25.1, 5.6, 0), App.Vector(0, 0, 1), 1.4), math.radians(180), math.radians(360)), False)
sketch14.addGeometry(Part.LineSegment(App.Vector(23.8, 5.6, 0), App.Vector(23.8, 8.5, 0)), False)
sketch14.addGeometry(Part.LineSegment(App.Vector(23.8, 8.5, 0), App.Vector(26.5, 8.5, 0)), False)
sketch14.addConstraint(Sketcher.Constraint("Tangent", 0, 2, 1, 2))
sketch14.addConstraint(Sketcher.Constraint("Tangent", 1, 1, 2, 1))
sketch14.addConstraint(Sketcher.Constraint("Coincident", 2, 2, 3, 1))
sketch14.addConstraint(Sketcher.Constraint("Coincident", 3, 2, 0, 1))
sketch14.addConstraint(Sketcher.Constraint("Vertical", 0))
sketch14.addConstraint(Sketcher.Constraint("Vertical", 2))
sketch14.addConstraint(Sketcher.Constraint("Horizontal", 3))
sketch14.addConstraint(Sketcher.Constraint("Radius", 1, Q("1.35 mm")))
sketch14.addConstraint(Sketcher.Constraint("DistanceY", 0, 2, 0, 1, Q("2.93 mm")))
sketch14.addConstraint(Sketcher.Constraint("DistanceY", -1, 1, 2, 2, Q("8.5 mm")))
sketch14.addConstraint(Sketcher.Constraint("DistanceX", -1, 1, 1, 3, Q("25.14 mm")))
pocket9 = body.newObject("PartDesign::Pocket", "Pocket008")
pocket9.Profile = sketch14
pocket9.Type = "UpToFirst"
pocket9.Reversed = True

# Sketch on XZ plane
sketch15 = body.newObject("Sketcher::SketchObject", "Sketch014")
sketch15.AttachmentSupport = (doc.getObject("XZ_Plane"), [""])
sketch15.MapMode = "FlatFace"
sketch15.AttachmentOffset = App.Placement(App.Vector(0, 0, -4), App.Rotation())
add_polygon(sketch15, [(33.5, -2), (33.5, 0), (49.5, 0), (49.5, -2)])  # lines 0-3
sketch15.addConstraint(Sketcher.Constraint("Vertical", 0))
sketch15.addConstraint(Sketcher.Constraint("Horizontal", 1))
sketch15.addConstraint(Sketcher.Constraint("Vertical", 2))
sketch15.addConstraint(Sketcher.Constraint("Horizontal", 3))
sketch15.addConstraint(Sketcher.Constraint("PointOnObject", 0, 2, -1))
sketch15.addConstraint(Sketcher.Constraint("DistanceX", 1, 1, 1, 2, Q("16 mm")))
sketch15.addConstraint(Sketcher.Constraint("DistanceY", 0, 1, 0, 2, Q("2 mm")))
sketch15.addConstraint(Sketcher.Constraint("DistanceX", -1, 1, 0, 2, Q("33.55 mm")))
pad6 = body.newObject("PartDesign::Pad", "Pad005")
pad6.Profile = sketch15
pad6.Length = 1
pad6.Reversed = True
doc.recompute()

fillet2 = body.newObject("PartDesign::Fillet", "Fillet001")
fillet2.Base = (pad6, edges_at(pad6, [(41.55, 5, 0), (41.55, 5, -2)]))
fillet2.Radius = 0.6

doc.recompute()
